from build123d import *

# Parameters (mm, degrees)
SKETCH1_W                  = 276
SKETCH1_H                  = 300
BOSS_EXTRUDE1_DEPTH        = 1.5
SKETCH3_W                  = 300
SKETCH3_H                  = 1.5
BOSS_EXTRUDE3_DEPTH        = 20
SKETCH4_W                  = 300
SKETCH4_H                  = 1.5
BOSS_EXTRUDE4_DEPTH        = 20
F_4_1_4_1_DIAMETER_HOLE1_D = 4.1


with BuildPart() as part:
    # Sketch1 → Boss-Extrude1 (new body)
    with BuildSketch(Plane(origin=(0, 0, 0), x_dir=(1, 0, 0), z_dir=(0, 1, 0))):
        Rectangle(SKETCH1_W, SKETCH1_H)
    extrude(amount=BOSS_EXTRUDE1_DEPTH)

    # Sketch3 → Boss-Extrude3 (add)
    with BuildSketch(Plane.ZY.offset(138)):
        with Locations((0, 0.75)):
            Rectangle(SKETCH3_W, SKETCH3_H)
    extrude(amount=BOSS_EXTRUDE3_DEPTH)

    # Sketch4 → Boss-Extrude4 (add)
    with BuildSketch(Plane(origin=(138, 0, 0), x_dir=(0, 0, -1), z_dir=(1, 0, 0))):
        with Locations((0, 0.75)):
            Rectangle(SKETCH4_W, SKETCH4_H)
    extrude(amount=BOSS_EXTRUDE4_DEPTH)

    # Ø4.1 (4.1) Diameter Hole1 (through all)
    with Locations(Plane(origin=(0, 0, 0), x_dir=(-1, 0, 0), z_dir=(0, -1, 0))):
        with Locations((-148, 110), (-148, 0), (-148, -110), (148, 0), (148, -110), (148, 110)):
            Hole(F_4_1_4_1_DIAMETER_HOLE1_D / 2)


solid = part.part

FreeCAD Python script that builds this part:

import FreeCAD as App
import Part
import Sketcher
Q = App.Units.Quantity


def add_polygon(sketch, points):
    """Adds a closed chain of lines whose ends are joined by coincident constraints."""
    first, n = sketch.GeometryCount, len(points)
    for a, b in zip(points, points[1:] + points[:1]):
        sketch.addGeometry(Part.LineSegment(App.Vector(*a, 0), App.Vector(*b, 0)), False)
    for i in range(n):
        sketch.addConstraint(Sketcher.Constraint("Coincident", first + i, 2, first + (i + 1) % n, 1))

doc = App.newDocument("Part")
params = doc.addObject("Spreadsheet::Sheet", "Params")
for row, (alias, value) in enumerate([
    ("sketch1_width", "276 mm"),
    ("sketch1_height", "300 mm"),
    ("pad1_length", "1.5 mm"),
    ("sketch2_height", "300 mm"),
    ("sketch2_width", "1.5 mm"),
    ("pad2_length", "20 mm"),
    ("sketch3_height", "300 mm"),
    ("sketch3_width", "1.5 mm"),
    ("pad3_length", "20 mm"),
    ("sketch4_diameter", "4.1 mm"),
    ("hole_diameter", "4.1 mm"),
], start=1):
    params.set(f"A{row}", alias)
    params.set(f"B{row}", "=" + value)
    params.setAlias(f"B{row}", alias)

body = doc.addObject("PartDesign::Body", "Body")

# Sketch on XZ plane
sketch1 = body.newObject("Sketcher::SketchObject", "Sketch")
sketch1.AttachmentSupport = (doc.getObject("XZ_Plane"), [""])
sketch1.MapMode = "FlatFace"
add_polygon(sketch1, [(-138, -150), (-138, 150), (138, 150), (138, -150)])  # lines 0-3
sketch1.addConstraint([
    Sketcher.Constraint("Vertical", 0),
    Sketcher.Constraint("Horizontal", 1),
    Sketcher.Constraint("Vertical", 2),
    Sketcher.Constraint("Horizontal", 3),
    Sketcher.Constraint("Symmetric", 0, 2, 2, 2, -1, 1),
    Sketcher.Constraint("DistanceX", 1, 1, 1, 2, Q("276 mm")),
    Sketcher.Constraint("DistanceY", 0, 1, 0, 2, Q("300 mm")),
])
sketch1.setExpression("Constraints[9]", "Params.sketch1_width")
sketch1.setExpression("Constraints[10]", "Params.sketch1_height")
pad1 = body.newObject("PartDesign::Pad", "Pad")
pad1.Profile = sketch1
pad1.setExpression("Length", "Params.pad1_length")
pad1.Reversed = True

# Sketch on YZ plane
sketch2 = body.newObject("Sketcher::SketchObject", "Sketch001")
sketch2.AttachmentSupport = (doc.getObject("YZ_Plane"), [""])
sketch2.MapMode = "FlatFace"
sketch2.AttachmentOffset = App.Placement(App.Vector(0, 0, -138), App.Rotation())
add_polygon(sketch2, [(1.5, -150), (0, -150), (0, 150), (1.5, 150)])  # lines 0-3
sketch2.addConstraint([
    Sketcher.Constraint("Horizontal", 0),
    Sketcher.Constraint("Vertical", 1),
    Sketcher.Constraint("Horizontal", 2),
    Sketcher.Constraint("Vertical", 3),
    Sketcher.Constraint("Symmetric", 0, 2, 1, 2, -1, 1),
    Sketcher.Constraint("DistanceY", 1, 1, 1, 2, Q("300 mm")),
    Sketcher.Constraint("DistanceX", 0, 2, 0, 1, Q("1.5 mm")),
])
sketch2.setExpression("Constraints[9]", "Params.sketch2_height")
sketch2.setExpression("Constraints[10]", "Params.sketch2_width")
pad2 = body.newObject("PartDesign::Pad", "Pad001")
pad2.Profile = sketch2
pad2.setExpression("Length", "Params.pad2_length")
pad2.Reversed = True

# Sketch on YZ plane
sketch3 = body.newObject("Sketcher::SketchObject", "Sketch002")
sketch3.AttachmentSupport = (doc.getObject("YZ_Plane"), [""])
sketch3.MapMode = "FlatFace"
sketch3.AttachmentOffset = App.Placement(App.Vector(0, 0, 138), App.Rotation())
add_polygon(sketch3, [(1.5, 150), (0, 150), (0, -150), (1.5, -150)])  # lines 0-3
sketch3.addConstraint([
    Sketcher.Constraint("Horizontal", 0),
    Sketcher.Constraint("Vertical", 1),
    Sketcher.Constraint("Horizontal", 2),
    Sketcher.Constraint("Vertical", 3),
    Sketcher.Constraint("Symmetric", 0, 2, 1, 2, -1, 1),
    Sketcher.Constraint("DistanceY", 1, 2, 1, 1, Q("300 mm")),
    Sketcher.Constraint("DistanceX", 0, 2, 0, 1, Q("1.5 mm")),
])
sketch3.setExpression("Constraints[9]", "Params.sketch3_height")
sketch3.setExpression("Constraints[10]", "Params.sketch3_width")
pad3 = body.newObject("PartDesign::Pad", "Pad002")
pad3.Profile = sketch3
pad3.setExpression("Length", "Params.pad3_length")

# Sketch on XZ plane
sketch4 = body.newObject("Sketcher::SketchObject", "Sketch003")
sketch4.AttachmentSupport = (doc.getObject("XZ_Plane"), [""])
sketch4.MapMode = "FlatFace"
sketch4.addGeometry([
    Part.Circle(App.Vector(148, -110, 0), App.Vector(0, 0, 1), 2),  # 0
    Part.Circle(App.Vector(148, 0, 0), App.Vector(0, 0, 1), 2),  # 1
    Part.Circle(App.Vector(148, 110, 0), App.Vector(0, 0, 1), 2),  # 2
    Part.Circle(App.Vector(-148, 0, 0), App.Vector(0, 0, 1), 2),  # 3
    Part.Circle(App.Vector(-148, 110, 0), App.Vector(0, 0, 1), 2),  # 4
    Part.Circle(App.Vector(-148, -110, 0), App.Vector(0, 0, 1), 2),  # 5
], False)
sketch4.addConstraint([
    Sketcher.Constraint("Equal", 0, 1),
    Sketcher.Constraint("Equal", 1, 2),
    Sketcher.Constraint("Equal", 2, 3),
    Sketcher.Constraint("Equal", 3, 4),
    Sketcher.Constraint("Equal", 4, 5),
    Sketcher.Constraint("Symmetric", 1, 3, 3, 3, -1, 1),
    Sketcher.Constraint("Symmetric", 0, 3, 4, 3, -1, 1),
    Sketcher.Constraint("Symmetric", 2, 3, 5, 3, -1, 1),
    Sketcher.Constraint("Symmetric", 2, 3, 4, 3, -2),
    Sketcher.Constraint("PointOnObject", 1, 3, -1),
    Sketcher.Constraint("Vertical", 0, 3, 1, 3),
    Sketcher.Constraint("Diameter", 0, Q("4.1 mm")),
    Sketcher.Constraint("DistanceX", -1, 1, 0, 3, Q("148 mm")),
    Sketcher.Constraint("DistanceY", 0, 3, -1, 1, Q("110 mm")),
])
sketch4.setExpression("Constraints[11]", "Params.sketch4_diameter")
doc.recompute()
hole = body.newObject("PartDesign::Hole", "Hole")
hole.Profile = sketch4
hole.ThreadType = "None"
hole.setExpression("Diameter", "Params.hole_diameter")
hole.DepthType = "ThroughAll"

doc.recompute()
